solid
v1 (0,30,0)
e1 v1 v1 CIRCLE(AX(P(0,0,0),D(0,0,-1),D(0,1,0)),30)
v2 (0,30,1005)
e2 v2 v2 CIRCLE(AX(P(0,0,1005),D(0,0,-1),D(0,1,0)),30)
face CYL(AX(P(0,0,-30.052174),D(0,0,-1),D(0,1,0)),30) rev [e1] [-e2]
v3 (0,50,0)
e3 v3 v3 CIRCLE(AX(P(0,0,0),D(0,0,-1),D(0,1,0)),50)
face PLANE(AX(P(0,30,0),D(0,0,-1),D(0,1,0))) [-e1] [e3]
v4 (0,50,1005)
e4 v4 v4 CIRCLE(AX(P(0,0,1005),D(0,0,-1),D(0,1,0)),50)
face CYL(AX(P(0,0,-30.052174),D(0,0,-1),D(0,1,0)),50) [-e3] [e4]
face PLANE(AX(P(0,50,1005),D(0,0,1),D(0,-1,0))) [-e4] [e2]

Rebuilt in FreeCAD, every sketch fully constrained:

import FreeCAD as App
import Part
import Sketcher
Q = App.Units.Quantity

doc = App.newDocument("Part")
body = doc.addObject("PartDesign::Body", "Body")

# Sketch on YZ plane
sketch1 = doc.addObject("Sketcher::SketchObject", "Sketch")
body.addObject(sketch1)
sketch1.AttachmentSupport = (doc.YZ_Plane, [""])
sketch1.MapMode = "FlatFace"
sketch1.addGeometry([
    Part.LineSegment(App.Vector(50, 1005, 0), App.Vector(30, 1005, 0)),
    Part.LineSegment(App.Vector(30, 1005, 0), App.Vector(30, 0, 0)),
    Part.LineSegment(App.Vector(30, 0, 0), App.Vector(50, 0, 0)),
    Part.LineSegment(App.Vector(50, 0, 0), App.Vector(50, 1005, 0)),
], False)
sketch1.addConstraint([
    Sketcher.Constraint("Coincident", 0, 2, 1, 1),
    Sketcher.Constraint("Coincident", 1, 2, 2, 1),
    Sketcher.Constraint("Coincident", 2, 2, 3, 1),
    Sketcher.Constraint("Coincident", 3, 2, 0, 1),
    Sketcher.Constraint("Horizontal", 0),
    Sketcher.Constraint("Vertical", 1),
    Sketcher.Constraint("Horizontal", 2),
    Sketcher.Constraint("Vertical", 3),
    Sketcher.Constraint("PointOnObject", 1, 2, -1),
    Sketcher.Constraint("DistanceX", 0, 2, 0, 1, Q("20 mm")),
    Sketcher.Constraint("DistanceY", 1, 2, 1, 1, Q("1005 mm")),
    Sketcher.Constraint("DistanceX", -1, 1, 0, 2, Q("30 mm")),
])
revolution = doc.addObject("PartDesign::Revolution", "Revolution")
body.addObject(revolution)
revolution.Profile = sketch1
revolution.ReferenceAxis = (sketch1, ["V_Axis"])
revolution.Angle = 360

doc.recompute()
